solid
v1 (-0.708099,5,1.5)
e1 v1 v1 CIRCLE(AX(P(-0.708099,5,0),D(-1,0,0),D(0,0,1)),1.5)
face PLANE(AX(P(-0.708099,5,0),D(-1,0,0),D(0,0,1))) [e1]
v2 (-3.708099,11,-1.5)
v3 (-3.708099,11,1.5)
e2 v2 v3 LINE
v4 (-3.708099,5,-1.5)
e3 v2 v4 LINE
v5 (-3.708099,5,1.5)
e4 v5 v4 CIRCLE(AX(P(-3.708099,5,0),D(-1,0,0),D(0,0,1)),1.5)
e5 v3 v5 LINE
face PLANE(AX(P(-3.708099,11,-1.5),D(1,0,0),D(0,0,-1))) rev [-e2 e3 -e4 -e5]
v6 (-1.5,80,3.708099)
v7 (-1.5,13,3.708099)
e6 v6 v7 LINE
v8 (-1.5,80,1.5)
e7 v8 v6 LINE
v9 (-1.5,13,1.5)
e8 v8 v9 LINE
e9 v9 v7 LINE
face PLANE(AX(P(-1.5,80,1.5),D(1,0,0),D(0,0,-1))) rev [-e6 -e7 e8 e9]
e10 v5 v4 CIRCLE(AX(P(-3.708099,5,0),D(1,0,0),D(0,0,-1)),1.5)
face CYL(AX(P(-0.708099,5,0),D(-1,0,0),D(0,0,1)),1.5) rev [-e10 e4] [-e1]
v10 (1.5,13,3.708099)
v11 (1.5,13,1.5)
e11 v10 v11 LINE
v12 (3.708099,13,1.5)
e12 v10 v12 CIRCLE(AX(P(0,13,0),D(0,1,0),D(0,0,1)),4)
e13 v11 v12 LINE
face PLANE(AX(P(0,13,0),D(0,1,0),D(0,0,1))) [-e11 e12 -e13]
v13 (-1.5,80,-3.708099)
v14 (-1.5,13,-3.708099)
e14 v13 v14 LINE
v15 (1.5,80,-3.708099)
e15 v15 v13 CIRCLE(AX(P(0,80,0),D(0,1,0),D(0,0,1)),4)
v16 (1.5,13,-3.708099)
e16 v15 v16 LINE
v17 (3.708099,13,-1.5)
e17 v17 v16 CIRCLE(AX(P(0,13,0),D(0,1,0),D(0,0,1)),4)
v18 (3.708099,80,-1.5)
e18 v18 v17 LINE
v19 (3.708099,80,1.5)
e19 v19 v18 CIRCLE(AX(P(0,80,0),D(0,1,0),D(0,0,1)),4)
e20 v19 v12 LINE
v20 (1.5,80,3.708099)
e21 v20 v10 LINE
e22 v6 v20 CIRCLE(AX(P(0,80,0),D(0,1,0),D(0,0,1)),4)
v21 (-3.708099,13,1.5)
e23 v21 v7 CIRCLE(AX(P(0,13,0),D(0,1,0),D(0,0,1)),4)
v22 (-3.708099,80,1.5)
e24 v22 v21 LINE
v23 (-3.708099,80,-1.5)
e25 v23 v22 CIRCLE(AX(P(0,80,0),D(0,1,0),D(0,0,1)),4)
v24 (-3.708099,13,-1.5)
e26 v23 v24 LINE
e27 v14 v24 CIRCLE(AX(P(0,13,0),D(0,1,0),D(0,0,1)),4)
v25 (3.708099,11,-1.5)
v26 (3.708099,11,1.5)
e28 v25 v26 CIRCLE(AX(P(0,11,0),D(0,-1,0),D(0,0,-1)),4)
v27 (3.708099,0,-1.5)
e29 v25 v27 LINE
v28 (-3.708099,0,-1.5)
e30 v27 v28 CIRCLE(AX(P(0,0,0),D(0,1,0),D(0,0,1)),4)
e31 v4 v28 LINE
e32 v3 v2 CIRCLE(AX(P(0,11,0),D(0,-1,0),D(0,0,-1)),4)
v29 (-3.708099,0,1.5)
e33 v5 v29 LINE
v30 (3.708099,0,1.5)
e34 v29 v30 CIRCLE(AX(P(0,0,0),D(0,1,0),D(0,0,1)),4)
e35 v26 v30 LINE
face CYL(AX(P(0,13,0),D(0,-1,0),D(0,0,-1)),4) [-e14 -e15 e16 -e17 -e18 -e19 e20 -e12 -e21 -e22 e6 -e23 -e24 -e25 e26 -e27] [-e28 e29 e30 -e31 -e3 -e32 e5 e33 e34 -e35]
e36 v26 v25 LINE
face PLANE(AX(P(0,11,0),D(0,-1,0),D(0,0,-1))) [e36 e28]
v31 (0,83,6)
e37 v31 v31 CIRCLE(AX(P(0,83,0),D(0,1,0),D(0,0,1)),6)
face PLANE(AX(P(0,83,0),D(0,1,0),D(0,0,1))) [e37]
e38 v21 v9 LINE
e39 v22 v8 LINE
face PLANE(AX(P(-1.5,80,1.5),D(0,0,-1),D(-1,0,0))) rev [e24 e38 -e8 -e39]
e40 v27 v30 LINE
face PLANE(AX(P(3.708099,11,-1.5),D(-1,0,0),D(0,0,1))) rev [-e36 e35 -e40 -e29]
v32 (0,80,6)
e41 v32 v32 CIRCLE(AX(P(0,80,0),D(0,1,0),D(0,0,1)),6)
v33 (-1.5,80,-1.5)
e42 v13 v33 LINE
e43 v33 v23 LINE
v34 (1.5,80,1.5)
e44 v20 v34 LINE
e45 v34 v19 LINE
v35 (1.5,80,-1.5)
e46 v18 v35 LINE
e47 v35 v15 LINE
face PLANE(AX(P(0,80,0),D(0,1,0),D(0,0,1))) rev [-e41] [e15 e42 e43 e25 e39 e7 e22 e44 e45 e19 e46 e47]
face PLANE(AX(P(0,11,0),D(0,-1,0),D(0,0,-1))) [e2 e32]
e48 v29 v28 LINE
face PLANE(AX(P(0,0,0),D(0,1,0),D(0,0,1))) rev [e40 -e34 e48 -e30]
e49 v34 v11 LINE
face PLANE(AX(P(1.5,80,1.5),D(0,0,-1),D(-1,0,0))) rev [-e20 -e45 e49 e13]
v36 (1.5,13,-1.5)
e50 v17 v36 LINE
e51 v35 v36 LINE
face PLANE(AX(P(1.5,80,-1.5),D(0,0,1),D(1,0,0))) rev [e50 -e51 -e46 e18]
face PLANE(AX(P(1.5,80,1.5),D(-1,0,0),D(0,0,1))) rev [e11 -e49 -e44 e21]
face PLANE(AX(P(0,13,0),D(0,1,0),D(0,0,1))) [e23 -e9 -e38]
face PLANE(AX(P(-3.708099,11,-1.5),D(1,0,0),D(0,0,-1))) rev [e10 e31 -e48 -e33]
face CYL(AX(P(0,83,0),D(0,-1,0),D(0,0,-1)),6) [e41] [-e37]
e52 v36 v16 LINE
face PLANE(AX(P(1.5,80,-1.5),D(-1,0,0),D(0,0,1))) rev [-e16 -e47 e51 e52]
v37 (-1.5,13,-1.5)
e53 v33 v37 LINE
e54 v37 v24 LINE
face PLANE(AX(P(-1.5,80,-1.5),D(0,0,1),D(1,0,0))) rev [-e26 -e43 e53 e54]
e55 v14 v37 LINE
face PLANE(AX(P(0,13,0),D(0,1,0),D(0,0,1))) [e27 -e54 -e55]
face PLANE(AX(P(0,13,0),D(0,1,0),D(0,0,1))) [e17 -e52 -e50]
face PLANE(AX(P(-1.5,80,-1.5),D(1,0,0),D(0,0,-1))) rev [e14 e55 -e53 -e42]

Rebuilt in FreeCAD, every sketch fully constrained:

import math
import FreeCAD as App
import Part
import Sketcher

doc = App.newDocument("Part")
params = doc.addObject("Spreadsheet::Sheet", "Params")
for row, (alias, value) in enumerate([
    ("sketch1_diameter", "8 mm"),
    ("pad1_length", "13 mm"),
    ("sketch2_radius", "4 mm"),
    ("sketch2_height", "3 mm"),
    ("pocket1_length", "1 mm"),
    ("pocket1_length2", "11 mm"),
    ("sketch3_diameter", "3 mm"),
    ("pocket2_length", "3 mm"),
    ("sketch4_radius", "4 mm"),
    ("pad2_length", "67 mm"),
    ("sketch5_diameter", "12 mm"),
    ("pad3_length", "3 mm"),
], start=1):
    params.set(f"A{row}", alias)
    params.set(f"B{row}", "=" + value)
    params.setAlias(f"B{row}", alias)

body = doc.addObject("PartDesign::Body", "Body")

# Sketch on XZ plane
sketch1 = doc.addObject("Sketcher::SketchObject", "Sketch")
body.addObject(sketch1)
sketch1.AttachmentSupport = (doc.XZ_Plane, [""])
sketch1.MapMode = "FlatFace"
sketch1.addGeometry(Part.Circle(App.Vector(0, 0, 0), App.Vector(0, 0, 1), 4), False)
sketch1.addConstraint([
    Sketcher.Constraint("Coincident", 0, 3, -1, 1),
    Sketcher.Constraint("Diameter", 0, 8.0),
])
sketch1.setExpression("Constraints[1]", "Params.sketch1_diameter")
pad1 = doc.addObject("PartDesign::Pad", "Pad")
body.addObject(pad1)
pad1.Profile = sketch1
pad1.setExpression("Length", "Params.pad1_length")
pad1.Reversed = True

# Sketch on XZ plane
sketch2 = doc.addObject("Sketcher::SketchObject", "Sketch001")
body.addObject(sketch2)
sketch2.AttachmentSupport = (doc.XZ_Plane, [""])
sketch2.MapMode = "FlatFace"
sketch2.addGeometry([
    Part.LineSegment(App.Vector(-3.7, -1.5, 0), App.Vector(-3.7, 1.5, 0)),
    Part.ArcOfCircle(Part.Circle(App.Vector(0, 0, 0), App.Vector(0, 0, 1), 4), math.radians(158), math.radians(202)),
    Part.LineSegment(App.Vector(3.7, 1.5, 0), App.Vector(3.7, -1.5, 0)),
    Part.ArcOfCircle(Part.Circle(App.Vector(0, 0, 0), App.Vector(0, 0, 1), 4), math.radians(-22), math.radians(22)),
], False)
sketch2.addConstraint([
    Sketcher.Constraint("Coincident", 0, 1, 1, 2),
    Sketcher.Constraint("Coincident", 1, 1, 0, 2),
    Sketcher.Constraint("Coincident", 2, 1, 3, 2),
    Sketcher.Constraint("Coincident", 3, 1, 2, 2),
    Sketcher.Constraint("Vertical", 0),
    Sketcher.Constraint("Vertical", 2),
    Sketcher.Constraint("Coincident", 1, 3, -1, 1),
    Sketcher.Constraint("Coincident", 3, 3, -1, 1),
    Sketcher.Constraint("Equal", 1, 3),
    Sketcher.Constraint("Horizontal", 1, 1, 2, 1),
    Sketcher.Constraint("Radius", 1, 4.0),
    Sketcher.Constraint("DistanceY", 0, 1, 0, 2, 3.0),
])
sketch2.setExpression("Constraints[10]", "Params.sketch2_radius")
sketch2.setExpression("Constraints[11]", "Params.sketch2_height")
pocket1 = doc.addObject("PartDesign::Pocket", "Pocket")
body.addObject(pocket1)
pocket1.Profile = sketch2
pocket1.Type = "TwoLengths"
pocket1.setExpression("Length", "Params.pocket1_length")
pocket1.setExpression("Length2", "Params.pocket1_length2")
pocket1.Reversed = True

# Sketch on YZ plane
sketch3 = doc.addObject("Sketcher::SketchObject", "Sketch002")
body.addObject(sketch3)
sketch3.AttachmentSupport = (doc.YZ_Plane, [""])
sketch3.MapMode = "FlatFace"
sketch3.AttachmentOffset = App.Placement(App.Vector(0, 0, -3.708099), App.Rotation())
sketch3.addGeometry(Part.Circle(App.Vector(5, 0, 0), App.Vector(0, 0, 1), 1.5), False)
sketch3.addConstraint([
    Sketcher.Constraint("PointOnObject", 0, 3, -1),
    Sketcher.Constraint("Diameter", 0, 3.0),
    Sketcher.Constraint("DistanceX", -1, 1, 0, 3, 5.0),
])
sketch3.setExpression("Constraints[1]", "Params.sketch3_diameter")
pocket2 = doc.addObject("PartDesign::Pocket", "Pocket001")
body.addObject(pocket2)
pocket2.Profile = sketch3
pocket2.setExpression("Length", "Params.pocket2_length")
pocket2.Reversed = True

# Sketch on XZ plane
sketch4 = doc.addObject("Sketcher::SketchObject", "Sketch003")
body.addObject(sketch4)
sketch4.AttachmentSupport = (doc.XZ_Plane, [""])
sketch4.MapMode = "FlatFace"
sketch4.AttachmentOffset = App.Placement(App.Vector(0, 0, -13), App.Rotation())
sketch4.addGeometry([
    Part.LineSegment(App.Vector(1.5, -1.5, 0), App.Vector(1.5, -3.7, 0)),  # 0
    Part.ArcOfCircle(Part.Circle(App.Vector(0, 0, 0), App.Vector(0, 0, 1), 4), math.radians(-112), math.radians(-68)),  # 1
    Part.LineSegment(App.Vector(-1.5, -3.7, 0), App.Vector(-1.5, -1.5, 0)),  # 2
    Part.LineSegment(App.Vector(-1.5, -1.5, 0), App.Vector(-3.7, -1.5, 0)),  # 3
    Part.ArcOfCircle(Part.Circle(App.Vector(0, 0, 0), App.Vector(0, 0, 1), 4), math.radians(158), math.radians(202)),  # 4
    Part.LineSegment(App.Vector(-3.7, 1.5, 0), App.Vector(-1.5, 1.5, 0)),  # 5
    Part.LineSegment(App.Vector(-1.5, 1.5, 0), App.Vector(-1.5, 3.7, 0)),  # 6
    Part.ArcOfCircle(Part.Circle(App.Vector(0, 0, 0), App.Vector(0, 0, 1), 4), math.radians(68), math.radians(112)),  # 7
    Part.LineSegment(App.Vector(1.5, 3.7, 0), App.Vector(1.5, 1.5, 0)),  # 8
    Part.LineSegment(App.Vector(1.5, 1.5, 0), App.Vector(3.7, 1.5, 0)),  # 9
    Part.ArcOfCircle(Part.Circle(App.Vector(0, 0, 0), App.Vector(0, 0, 1), 4), math.radians(-22), math.radians(22)),  # 10
    Part.LineSegment(App.Vector(3.7, -1.5, 0), App.Vector(1.5, -1.5, 0)),  # 11
], False)
sketch4.addConstraint([
    Sketcher.Constraint("Coincident", 0, 2, 1, 2),
    Sketcher.Constraint("Coincident", 1, 1, 2, 1),
    Sketcher.Constraint("Coincident", 2, 2, 3, 1),
    Sketcher.Constraint("Coincident", 3, 2, 4, 2),
    Sketcher.Constraint("Coincident", 4, 1, 5, 1),
    Sketcher.Constraint("Coincident", 5, 2, 6, 1),
    Sketcher.Constraint("Coincident", 6, 2, 7, 2),
    Sketcher.Constraint("Coincident", 7, 1, 8, 1),
    Sketcher.Constraint("Coincident", 8, 2, 9, 1),
    Sketcher.Constraint("Coincident", 9, 2, 10, 2),
    Sketcher.Constraint("Coincident", 10, 1, 11, 1),
    Sketcher.Constraint("Coincident", 11, 2, 0, 1),
    Sketcher.Constraint("Vertical", 0),
    Sketcher.Constraint("Vertical", 2),
    Sketcher.Constraint("Horizontal", 3),
    Sketcher.Constraint("Horizontal", 5),
    Sketcher.Constraint("Vertical", 6),
    Sketcher.Constraint("Vertical", 8),
    Sketcher.Constraint("Horizontal", 9),
    Sketcher.Constraint("Horizontal", 11),
    Sketcher.Constraint("Coincident", 1, 3, -1, 1),
    Sketcher.Constraint("Coincident", 4, 3, -1, 1),
    Sketcher.Constraint("Coincident", 7, 3, -1, 1),
    Sketcher.Constraint("Coincident", 10, 3, -1, 1),
    Sketcher.Constraint("Equal", 1, 4),
    Sketcher.Constraint("Equal", 4, 7),
    Sketcher.Constraint("Equal", 7, 10),
    Sketcher.Constraint("Symmetric", 2, 2, 8, 2, -1, 1),
    Sketcher.Constraint("Symmetric", 5, 2, 11, 2, -1, 1),
    Sketcher.Constraint("Symmetric", 5, 2, 8, 2, -2),
    Sketcher.Constraint("Equal", 11, 0),
    Sketcher.Constraint("Radius", 1, 4.0),
    Sketcher.Constraint("DistanceX", 1, 1, 0, 2, 3.0),
])
sketch4.setExpression("Constraints[31]", "Params.sketch4_radius")
pad2 = doc.addObject("PartDesign::Pad", "Pad001")
body.addObject(pad2)
pad2.Profile = sketch4
pad2.setExpression("Length", "Params.pad2_length")
pad2.Reversed = True

# Sketch on XZ plane
sketch5 = doc.addObject("Sketcher::SketchObject", "Sketch004")
body.addObject(sketch5)
sketch5.AttachmentSupport = (doc.XZ_Plane, [""])
sketch5.MapMode = "FlatFace"
sketch5.AttachmentOffset = App.Placement(App.Vector(0, 0, -80), App.Rotation())
sketch5.addGeometry(Part.Circle(App.Vector(0, 0, 0), App.Vector(0, 0, 1), 6), False)
sketch5.addConstraint([
    Sketcher.Constraint("Coincident", 0, 3, -1, 1),
    Sketcher.Constraint("Diameter", 0, 12.0),
])
sketch5.setExpression("Constraints[1]", "Params.sketch5_diameter")
pad3 = doc.addObject("PartDesign::Pad", "Pad002")
body.addObject(pad3)
pad3.Profile = sketch5
pad3.setExpression("Length", "Params.pad3_length")
pad3.Reversed = True

doc.recompute()
